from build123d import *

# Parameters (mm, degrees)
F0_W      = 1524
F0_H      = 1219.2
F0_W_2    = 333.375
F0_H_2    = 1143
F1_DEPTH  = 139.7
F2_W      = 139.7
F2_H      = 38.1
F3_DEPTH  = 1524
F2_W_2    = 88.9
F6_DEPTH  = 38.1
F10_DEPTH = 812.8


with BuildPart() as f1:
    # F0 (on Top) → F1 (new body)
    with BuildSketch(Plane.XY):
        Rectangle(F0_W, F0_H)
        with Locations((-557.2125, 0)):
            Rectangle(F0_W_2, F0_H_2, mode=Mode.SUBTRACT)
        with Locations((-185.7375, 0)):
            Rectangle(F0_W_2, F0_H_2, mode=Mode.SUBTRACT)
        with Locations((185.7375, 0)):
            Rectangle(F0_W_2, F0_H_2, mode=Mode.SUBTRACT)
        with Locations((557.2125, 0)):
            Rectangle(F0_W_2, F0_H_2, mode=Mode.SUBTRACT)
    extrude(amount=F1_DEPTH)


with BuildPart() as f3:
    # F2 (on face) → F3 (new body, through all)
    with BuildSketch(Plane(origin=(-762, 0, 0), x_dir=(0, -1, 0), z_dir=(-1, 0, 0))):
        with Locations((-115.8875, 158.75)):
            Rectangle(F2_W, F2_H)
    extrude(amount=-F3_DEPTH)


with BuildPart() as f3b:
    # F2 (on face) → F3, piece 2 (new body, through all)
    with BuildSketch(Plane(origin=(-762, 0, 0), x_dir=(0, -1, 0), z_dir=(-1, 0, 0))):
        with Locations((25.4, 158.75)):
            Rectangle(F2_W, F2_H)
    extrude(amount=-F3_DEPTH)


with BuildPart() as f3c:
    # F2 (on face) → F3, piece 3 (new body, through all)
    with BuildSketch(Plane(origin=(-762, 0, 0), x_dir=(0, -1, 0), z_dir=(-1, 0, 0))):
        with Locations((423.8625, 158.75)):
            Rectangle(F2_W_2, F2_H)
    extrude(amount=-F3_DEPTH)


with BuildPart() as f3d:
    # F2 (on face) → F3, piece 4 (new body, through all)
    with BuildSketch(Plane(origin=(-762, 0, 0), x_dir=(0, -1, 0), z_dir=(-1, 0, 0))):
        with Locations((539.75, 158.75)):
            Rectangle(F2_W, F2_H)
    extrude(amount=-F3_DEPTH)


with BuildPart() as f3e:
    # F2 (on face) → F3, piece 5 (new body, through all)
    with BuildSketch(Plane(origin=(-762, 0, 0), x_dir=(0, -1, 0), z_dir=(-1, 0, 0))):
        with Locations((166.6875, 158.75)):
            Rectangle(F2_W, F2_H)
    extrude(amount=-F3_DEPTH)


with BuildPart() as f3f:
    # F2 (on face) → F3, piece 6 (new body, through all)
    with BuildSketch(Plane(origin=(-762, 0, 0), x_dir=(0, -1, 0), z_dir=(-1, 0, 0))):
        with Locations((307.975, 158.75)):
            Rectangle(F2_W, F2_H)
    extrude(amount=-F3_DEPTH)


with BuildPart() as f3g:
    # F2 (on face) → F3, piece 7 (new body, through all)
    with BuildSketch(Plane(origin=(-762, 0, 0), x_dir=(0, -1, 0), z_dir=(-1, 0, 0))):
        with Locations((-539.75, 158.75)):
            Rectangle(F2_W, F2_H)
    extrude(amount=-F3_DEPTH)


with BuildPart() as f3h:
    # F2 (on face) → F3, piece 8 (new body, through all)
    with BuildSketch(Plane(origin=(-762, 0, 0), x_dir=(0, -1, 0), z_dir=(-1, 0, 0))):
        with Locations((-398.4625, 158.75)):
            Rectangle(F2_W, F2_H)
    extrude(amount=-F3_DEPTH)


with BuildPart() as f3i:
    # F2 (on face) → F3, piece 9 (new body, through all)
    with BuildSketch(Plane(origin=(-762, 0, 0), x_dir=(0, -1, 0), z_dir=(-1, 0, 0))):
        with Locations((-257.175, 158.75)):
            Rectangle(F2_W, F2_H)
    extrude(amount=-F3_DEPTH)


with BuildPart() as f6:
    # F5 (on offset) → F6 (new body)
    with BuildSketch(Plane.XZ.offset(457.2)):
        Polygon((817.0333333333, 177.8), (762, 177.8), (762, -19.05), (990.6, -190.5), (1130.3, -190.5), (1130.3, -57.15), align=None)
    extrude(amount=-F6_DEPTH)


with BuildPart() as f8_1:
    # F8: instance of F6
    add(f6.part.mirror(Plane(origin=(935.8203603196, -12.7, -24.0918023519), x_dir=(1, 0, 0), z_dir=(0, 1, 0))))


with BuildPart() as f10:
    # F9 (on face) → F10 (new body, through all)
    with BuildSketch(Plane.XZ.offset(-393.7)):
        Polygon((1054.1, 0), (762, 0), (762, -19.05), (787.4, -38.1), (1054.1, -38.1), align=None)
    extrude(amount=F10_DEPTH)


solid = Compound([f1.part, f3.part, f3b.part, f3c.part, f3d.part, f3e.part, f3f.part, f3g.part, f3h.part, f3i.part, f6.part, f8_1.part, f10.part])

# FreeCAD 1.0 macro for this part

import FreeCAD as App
import Part
import Sketcher

V = App.Vector
Q = App.Units.Quantity


def add_polygon(sketch, points):
    """Adds a closed chain of lines whose ends are joined by coincident constraints."""
    first, n = sketch.GeometryCount, len(points)
    for a, b in zip(points, points[1:] + points[:1]):
        sketch.addGeometry(Part.LineSegment(App.Vector(*a, 0), App.Vector(*b, 0)), False)
    for i in range(n):
        sketch.addConstraint(Sketcher.Constraint("Coincident", first + i, 2, first + (i + 1) % n, 1))

doc = App.newDocument("Part")
body = doc.addObject("PartDesign::Body", "Body")

# Sketch on XY plane
sketch1 = body.newObject("Sketcher::SketchObject", "Sketch")
sketch1.AttachmentSupport = (doc.getObject("XY_Plane"), [""])
sketch1.MapMode = "FlatFace"
add_polygon(sketch1, [(-762, 609.6), (-762, -609.6), (762, -609.6), (762, 609.6)])  # lines 0-3
add_polygon(sketch1, [(-390.525, -571.5), (-723.9, -571.5), (-723.9, 571.5), (-390.525, 571.5)])  # lines 4-7
add_polygon(sketch1, [(-19.05, -571.5), (-352.425, -571.5), (-352.425, 571.5), (-19.05, 571.5)])  # lines 8-11
add_polygon(sketch1, [(352.425, -571.5), (19.05, -571.5), (19.05, 571.5), (352.425, 571.5)])  # lines 12-15
add_polygon(sketch1, [(723.9, -571.5), (390.525, -571.5), (390.525, 571.5), (723.9, 571.5)])  # lines 16-19
sketch1.addConstraint(Sketcher.Constraint("Vertical", 0))
sketch1.addConstraint(Sketcher.Constraint("Horizontal", 1))
sketch1.addConstraint(Sketcher.Constraint("Vertical", 2))
sketch1.addConstraint(Sketcher.Constraint("Horizontal", 3))
sketch1.addConstraint(Sketcher.Constraint("Horizontal", 4))
sketch1.addConstraint(Sketcher.Constraint("Vertical", 5))
sketch1.addConstraint(Sketcher.Constraint("Horizontal", 6))
sketch1.addConstraint(Sketcher.Constraint("Vertical", 7))
sketch1.addConstraint(Sketcher.Constraint("Horizontal", 8))
sketch1.addConstraint(Sketcher.Constraint("Vertical", 9))
sketch1.addConstraint(Sketcher.Constraint("Horizontal", 10))
sketch1.addConstraint(Sketcher.Constraint("Vertical", 11))
sketch1.addConstraint(Sketcher.Constraint("Horizontal", 12))
sketch1.addConstraint(Sketcher.Constraint("Vertical", 13))
sketch1.addConstraint(Sketcher.Constraint("Horizontal", 14))
sketch1.addConstraint(Sketcher.Constraint("Vertical", 15))
sketch1.addConstraint(Sketcher.Constraint("Horizontal", 16))
sketch1.addConstraint(Sketcher.Constraint("Vertical", 17))
sketch1.addConstraint(Sketcher.Constraint("Horizontal", 18))
sketch1.addConstraint(Sketcher.Constraint("Vertical", 19))
sketch1.addConstraint(Sketcher.Constraint("Symmetric", 0, 2, 2, 2, -1, 1))
sketch1.addConstraint(Sketcher.Constraint("Symmetric", 10, 2, 12, 2, -1, 1))
sketch1.addConstraint(Sketcher.Constraint("Symmetric", 8, 2, 14, 2, -1, 1))
sketch1.addConstraint(Sketcher.Constraint("Symmetric", 6, 2, 16, 2, -1, 1))
sketch1.addConstraint(Sketcher.Constraint("Symmetric", 4, 2, 18, 2, -1, 1))
sketch1.addConstraint(Sketcher.Constraint("Horizontal", 7, 2, 8, 2))
sketch1.addConstraint(Sketcher.Constraint("Horizontal", 6, 2, 9, 2))
sketch1.addConstraint(Sketcher.Constraint("Horizontal", 11, 2, 12, 2))
sketch1.addConstraint(Sketcher.Constraint("Equal", 6, 8))
sketch1.addConstraint(Sketcher.Constraint("DistanceX", 1, 1, 1, 2, Q("60 in")))
sketch1.addConstraint(Sketcher.Constraint("DistanceY", 0, 2, 0, 1, Q("48 in")))
sketch1.addConstraint(Sketcher.Constraint("DistanceY", 5, 1, 5, 2, Q("45 in")))
sketch1.addConstraint(Sketcher.Constraint("DistanceX", 4, 2, -1, 1, Q("28.5 in")))
sketch1.addConstraint(Sketcher.Constraint("DistanceX", 7, 2, 8, 2, Q("1.5 in")))
sketch1.addConstraint(Sketcher.Constraint("DistanceX", 11, 2, 12, 2, Q("1.5 in")))
pad1 = body.newObject("PartDesign::Pad", "Pad")
pad1.Profile = sketch1
pad1.Length = Q("5.5 in")
body2 = doc.addObject("PartDesign::Body", "Body001")

# Sketch on YZ plane
sketch2 = body2.newObject("Sketcher::SketchObject", "Sketch001")
sketch2.AttachmentSupport = (doc.getObject("YZ_Plane001"), [""])
sketch2.MapMode = "FlatFace"
sketch2.AttachmentOffset = App.Placement(V(0, 0, -30 * 25.4), App.Rotation())
add_polygon(sketch2, [(185.7375, 177.8), (185.7375, 139.7), (46.0375, 139.7), (46.0375, 177.8)])  # lines 0-3
sketch2.addConstraint(Sketcher.Constraint("Vertical", 0))
sketch2.addConstraint(Sketcher.Constraint("Horizontal", 1))
sketch2.addConstraint(Sketcher.Constraint("Vertical", 2))
sketch2.addConstraint(Sketcher.Constraint("Horizontal", 3))
sketch2.addConstraint(Sketcher.Constraint("DistanceX", 1, 2, 1, 1, Q("5.5 in")))
sketch2.addConstraint(Sketcher.Constraint("DistanceY", 0, 2, 0, 1, Q("1.5 in")))
sketch2.addConstraint(Sketcher.Constraint("DistanceY", -1, 1, 2, 2, Q("7 in")))
sketch2.addConstraint(Sketcher.Constraint("DistanceX", -1, 1, 0, 2, Q("7.3125 in")))
pad2 = body2.newObject("PartDesign::Pad", "Pad001")
pad2.Profile = sketch2
pad2.Length = Q("60 in")
body3 = doc.addObject("PartDesign::Body", "Body002")

# Sketch on YZ plane
sketch3 = body3.newObject("Sketcher::SketchObject", "Sketch002")
sketch3.AttachmentSupport = (doc.getObject("YZ_Plane002"), [""])
sketch3.MapMode = "FlatFace"
sketch3.AttachmentOffset = App.Placement(V(0, 0, -30 * 25.4), App.Rotation())
add_polygon(sketch3, [(44.45, 177.8), (44.45, 139.7), (-95.25, 139.7), (-95.25, 177.8)])  # lines 0-3
sketch3.addConstraint(Sketcher.Constraint("Vertical", 0))
sketch3.addConstraint(Sketcher.Constraint("Horizontal", 1))
sketch3.addConstraint(Sketcher.Constraint("Vertical", 2))
sketch3.addConstraint(Sketcher.Constraint("Horizontal", 3))
sketch3.addConstraint(Sketcher.Constraint("DistanceX", 1, 2, 1, 1, Q("5.5 in")))
sketch3.addConstraint(Sketcher.Constraint("DistanceY", 0, 2, 0, 1, Q("1.5 in")))
sketch3.addConstraint(Sketcher.Constraint("DistanceY", -1, 1, 2, 2, Q("7 in")))
sketch3.addConstraint(Sketcher.Constraint("DistanceX", -1, 1, 0, 2, Q("1.75 in")))
pad3 = body3.newObject("PartDesign::Pad", "Pad002")
pad3.Profile = sketch3
pad3.Length = Q("60 in")
body4 = doc.addObject("PartDesign::Body", "Body003")

# Sketch on YZ plane
sketch4 = body4.newObject("Sketcher::SketchObject", "Sketch003")
sketch4.AttachmentSupport = (doc.getObject("YZ_Plane003"), [""])
sketch4.MapMode = "FlatFace"
sketch4.AttachmentOffset = App.Placement(V(0, 0, -30 * 25.4), App.Rotation())
add_polygon(sketch4, [(-379.4125, 177.8), (-379.4125, 139.7), (-468.3125, 139.7), (-468.3125, 177.8)])  # lines 0-3
sketch4.addConstraint(Sketcher.Constraint("Vertical", 0))
sketch4.addConstraint(Sketcher.Constraint("Horizontal", 1))
sketch4.addConstraint(Sketcher.Constraint("Vertical", 2))
sketch4.addConstraint(Sketcher.Constraint("Horizontal", 3))
sketch4.addConstraint(Sketcher.Constraint("DistanceX", 1, 2, 1, 1, Q("3.5 in")))
sketch4.addConstraint(Sketcher.Constraint("DistanceY", 0, 2, 0, 1, Q("1.5 in")))
sketch4.addConstraint(Sketcher.Constraint("DistanceY", -1, 1, 2, 2, Q("7 in")))
sketch4.addConstraint(Sketcher.Constraint("DistanceX", 0, 2, -1, 1, Q("14.9375 in")))
pad4 = body4.newObject("PartDesign::Pad", "Pad003")
pad4.Profile = sketch4
pad4.Length = Q("60 in")
body5 = doc.addObject("PartDesign::Body", "Body004")

# Sketch on YZ plane
sketch5 = body5.newObject("Sketcher::SketchObject", "Sketch004")
sketch5.AttachmentSupport = (doc.getObject("YZ_Plane004"), [""])
sketch5.MapMode = "FlatFace"
sketch5.AttachmentOffset = App.Placement(V(0, 0, -30 * 25.4), App.Rotation())
add_polygon(sketch5, [(-469.9, 177.8), (-469.9, 139.7), (-609.6, 139.7), (-609.6, 177.8)])  # lines 0-3
sketch5.addConstraint(Sketcher.Constraint("Vertical", 0))
sketch5.addConstraint(Sketcher.Constraint("Horizontal", 1))
sketch5.addConstraint(Sketcher.Constraint("Vertical", 2))
sketch5.addConstraint(Sketcher.Constraint("Horizontal", 3))
sketch5.addConstraint(Sketcher.Constraint("DistanceX", 1, 2, 1, 1, Q("5.5 in")))
sketch5.addConstraint(Sketcher.Constraint("DistanceY", 0, 2, 0, 1, Q("1.5 in")))
sketch5.addConstraint(Sketcher.Constraint("DistanceX", 1, 2, -1, 1, Q("24 in")))
sketch5.addConstraint(Sketcher.Constraint("DistanceY", -1, 1, 2, 2, Q("7 in")))
pad5 = body5.newObject("PartDesign::Pad", "Pad004")
pad5.Profile = sketch5
pad5.Length = Q("60 in")
body6 = doc.addObject("PartDesign::Body", "Body005")

# Sketch on YZ plane
sketch6 = body6.newObject("Sketcher::SketchObject", "Sketch005")
sketch6.AttachmentSupport = (doc.getObject("YZ_Plane005"), [""])
sketch6.MapMode = "FlatFace"
sketch6.AttachmentOffset = App.Placement(V(0, 0, -30 * 25.4), App.Rotation())
add_polygon(sketch6, [(-96.8375, 177.8), (-96.8375, 139.7), (-236.5375, 139.7), (-236.5375, 177.8)])  # lines 0-3
sketch6.addConstraint(Sketcher.Constraint("Vertical", 0))
sketch6.addConstraint(Sketcher.Constraint("Horizontal", 1))
sketch6.addConstraint(Sketcher.Constraint("Vertical", 2))
sketch6.addConstraint(Sketcher.Constraint("Horizontal", 3))
sketch6.addConstraint(Sketcher.Constraint("DistanceX", 1, 2, 1, 1, Q("5.5 in")))
sketch6.addConstraint(Sketcher.Constraint("DistanceY", 0, 2, 0, 1, Q("1.5 in")))
sketch6.addConstraint(Sketcher.Constraint("DistanceY", -1, 1, 2, 2, Q("7 in")))
sketch6.addConstraint(Sketcher.Constraint("DistanceX", 0, 2, -1, 1, Q("3.8125 in")))
pad6 = body6.newObject("PartDesign::Pad", "Pad005")
pad6.Profile = sketch6
pad6.Length = Q("60 in")
body7 = doc.addObject("PartDesign::Body", "Body006")

# Sketch on YZ plane
sketch7 = body7.newObject("Sketcher::SketchObject", "Sketch006")
sketch7.AttachmentSupport = (doc.getObject("YZ_Plane006"), [""])
sketch7.MapMode = "FlatFace"
sketch7.AttachmentOffset = App.Placement(V(0, 0, -30 * 25.4), App.Rotation())
add_polygon(sketch7, [(-238.125, 177.8), (-238.125, 139.7), (-377.825, 139.7), (-377.825, 177.8)])  # lines 0-3
sketch7.addConstraint(Sketcher.Constraint("Vertical", 0))
sketch7.addConstraint(Sketcher.Constraint("Horizontal", 1))
sketch7.addConstraint(Sketcher.Constraint("Vertical", 2))
sketch7.addConstraint(Sketcher.Constraint("Horizontal", 3))
sketch7.addConstraint(Sketcher.Constraint("DistanceX", 1, 2, 1, 1, Q("5.5 in")))
sketch7.addConstraint(Sketcher.Constraint("DistanceY", 0, 2, 0, 1, Q("1.5 in")))
sketch7.addConstraint(Sketcher.Constraint("DistanceY", -1, 1, 2, 2, Q("7 in")))
sketch7.addConstraint(Sketcher.Constraint("DistanceX", 0, 2, -1, 1, Q("9.375 in")))
pad7 = body7.newObject("PartDesign::Pad", "Pad006")
pad7.Profile = sketch7
pad7.Length = Q("60 in")
body8 = doc.addObject("PartDesign::Body", "Body007")

# Sketch on YZ plane
sketch8 = body8.newObject("Sketcher::SketchObject", "Sketch007")
sketch8.AttachmentSupport = (doc.getObject("YZ_Plane007"), [""])
sketch8.MapMode = "FlatFace"
sketch8.AttachmentOffset = App.Placement(V(0, 0, -30 * 25.4), App.Rotation())
add_polygon(sketch8, [(609.6, 177.8), (609.6, 139.7), (469.9, 139.7), (469.9, 177.8)])  # lines 0-3
sketch8.addConstraint(Sketcher.Constraint("Vertical", 0))
sketch8.addConstraint(Sketcher.Constraint("Horizontal", 1))
sketch8.addConstraint(Sketcher.Constraint("Vertical", 2))
sketch8.addConstraint(Sketcher.Constraint("Horizontal", 3))
sketch8.addConstraint(Sketcher.Constraint("DistanceX", 1, 2, 1, 1, Q("5.5 in")))
sketch8.addConstraint(Sketcher.Constraint("DistanceY", 0, 2, 0, 1, Q("1.5 in")))
sketch8.addConstraint(Sketcher.Constraint("DistanceX", -1, 1, 0, 2, Q("24 in")))
sketch8.addConstraint(Sketcher.Constraint("DistanceY", -1, 1, 2, 2, Q("7 in")))
pad8 = body8.newObject("PartDesign::Pad", "Pad007")
pad8.Profile = sketch8
pad8.Length = Q("60 in")
body9 = doc.addObject("PartDesign::Body", "Body008")

# Sketch on YZ plane
sketch9 = body9.newObject("Sketcher::SketchObject", "Sketch008")
sketch9.AttachmentSupport = (doc.getObject("YZ_Plane008"), [""])
sketch9.MapMode = "FlatFace"
sketch9.AttachmentOffset = App.Placement(V(0, 0, -30 * 25.4), App.Rotation())
add_polygon(sketch9, [(468.3125, 177.8), (468.3125, 139.7), (328.6125, 139.7), (328.6125, 177.8)])  # lines 0-3
sketch9.addConstraint(Sketcher.Constraint("Vertical", 0))
sketch9.addConstraint(Sketcher.Constraint("Horizontal", 1))
sketch9.addConstraint(Sketcher.Constraint("Vertical", 2))
sketch9.addConstraint(Sketcher.Constraint("Horizontal", 3))
sketch9.addConstraint(Sketcher.Constraint("DistanceX", 1, 2, 1, 1, Q("5.5 in")))
sketch9.addConstraint(Sketcher.Constraint("DistanceY", 0, 2, 0, 1, Q("1.5 in")))
sketch9.addConstraint(Sketcher.Constraint("DistanceY", -1, 1, 2, 2, Q("7 in")))
sketch9.addConstraint(Sketcher.Constraint("DistanceX", -1, 1, 0, 2, Q("18.4375 in")))
pad9 = body9.newObject("PartDesign::Pad", "Pad008")
pad9.Profile = sketch9
pad9.Length = Q("60 in")
body10 = doc.addObject("PartDesign::Body", "Body009")

# Sketch on YZ plane
sketch10 = body10.newObject("Sketcher::SketchObject", "Sketch009")
sketch10.AttachmentSupport = (doc.getObject("YZ_Plane009"), [""])
sketch10.MapMode = "FlatFace"
sketch10.AttachmentOffset = App.Placement(V(0, 0, -30 * 25.4), App.Rotation())
add_polygon(sketch10, [(327.025, 177.8), (327.025, 139.7), (187.325, 139.7), (187.325, 177.8)])  # lines 0-3
sketch10.addConstraint(Sketcher.Constraint("Vertical", 0))
sketch10.addConstraint(Sketcher.Constraint("Horizontal", 1))
sketch10.addConstraint(Sketcher.Constraint("Vertical", 2))
sketch10.addConstraint(Sketcher.Constraint("Horizontal", 3))
sketch10.addConstraint(Sketcher.Constraint("DistanceX", 1, 2, 1, 1, Q("5.5 in")))
sketch10.addConstraint(Sketcher.Constraint("DistanceY", 0, 2, 0, 1, Q("1.5 in")))
sketch10.addConstraint(Sketcher.Constraint("DistanceY", -1, 1, 2, 2, Q("7 in")))
sketch10.addConstraint(Sketcher.Constraint("DistanceX", -1, 1, 0, 2, Q("12.875 in")))
pad10 = body10.newObject("PartDesign::Pad", "Pad009")
pad10.Profile = sketch10
pad10.Length = Q("60 in")
body11 = doc.addObject("PartDesign::Body", "Body010")

# Sketch on XZ plane
sketch11 = body11.newObject("Sketcher::SketchObject", "Sketch010")
sketch11.AttachmentSupport = (doc.getObject("XZ_Plane010"), [""])
sketch11.MapMode = "FlatFace"
sketch11.AttachmentOffset = App.Placement(V(0, 0, 18 * 25.4), App.Rotation())
add_polygon(sketch11, [(817.033333, 177.8), (762, 177.8), (762, -19.05), (990.6, -190.5), (1130.3, -190.5), (1130.3, -57.15)])  # lines 0-5
sketch11.addConstraint(Sketcher.Constraint("Horizontal", 0))
sketch11.addConstraint(Sketcher.Constraint("Vertical", 1))
sketch11.addConstraint(Sketcher.Constraint("Horizontal", 3))
sketch11.addConstraint(Sketcher.Constraint("Vertical", 4))
sketch11.addConstraint(Sketcher.Constraint("Parallel", 2, 5))
sketch11.addConstraint(Sketcher.Constraint("DistanceX", 3, 1, 3, 2, Q("5.5 in")))
sketch11.addConstraint(Sketcher.Constraint("DistanceX", -1, 1, 0, 2, Q("30 in")))
sketch11.addConstraint(Sketcher.Constraint("DistanceY", -1, 1, 0, 2, Q("7 in")))
sketch11.addConstraint(Sketcher.Constraint("DistanceX", -1, 1, 2, 2, Q("39 in")))
sketch11.addConstraint(Sketcher.Constraint("DistanceY", 1, 2, 1, 1, Q("7.75 in")))
sketch11.addConstraint(Sketcher.Constraint("DistanceY", 4, 1, 4, 2, Q("5.25 in")))
sketch11.addConstraint(Sketcher.Constraint("DistanceY", 2, 2, -1, 1, Q("7.5 in")))
pad11 = body11.newObject("PartDesign::Pad", "Pad010")
pad11.Profile = sketch11
pad11.Length = Q("1.5 in")
pad11.Reversed = True
body12 = doc.addObject("PartDesign::Body", "Body011")
doc.recompute()

mirroring = doc.addObject("Part::Mirroring", "Mirroring")
mirroring.Source = body11
mirroring.Base = V(935.82036, -12.7, -24.091802)
mirroring.Normal = V(0, 1, 0)
body12.BaseFeature = mirroring
doc.recompute()
body13 = doc.addObject("PartDesign::Body", "Body012")

# Sketch on XZ plane
sketch12 = body13.newObject("Sketcher::SketchObject", "Sketch011")
sketch12.AttachmentSupport = (doc.getObject("XZ_Plane012"), [""])
sketch12.MapMode = "FlatFace"
sketch12.AttachmentOffset = App.Placement(V(0, 0, -15.5 * 25.4), App.Rotation())
add_polygon(sketch12, [(1054.1, 0), (762, 0), (762, -19.05), (787.4, -38.1), (1054.1, -38.1)])  # lines 0-4
sketch12.addConstraint(Sketcher.Constraint("Horizontal", 0))
sketch12.addConstraint(Sketcher.Constraint("Vertical", 1))
sketch12.addConstraint(Sketcher.Constraint("Horizontal", 3))
sketch12.addConstraint(Sketcher.Constraint("Vertical", 4))
sketch12.addConstraint(Sketcher.Constraint("PointOnObject", 0, 2, -1))
sketch12.addConstraint(Sketcher.Constraint("DistanceX", 0, 2, 0, 1, Q("11.5 in")))
sketch12.addConstraint(Sketcher.Constraint("DistanceX", 3, 1, 3, 2, Q("10.5 in")))
sketch12.addConstraint(Sketcher.Constraint("DistanceY", 4, 1, 4, 2, Q("1.5 in")))
sketch12.addConstraint(Sketcher.Constraint("DistanceX", -1, 1, 0, 2, Q("30 in")))
sketch12.addConstraint(Sketcher.Constraint("DistanceY", 1, 2, 1, 1, Q("0.75 in")))
pad12 = body13.newObject("PartDesign::Pad", "Pad011")
pad12.Profile = sketch12
pad12.Length = Q("32 in")
mirroring.Visibility = False

doc.recompute()
